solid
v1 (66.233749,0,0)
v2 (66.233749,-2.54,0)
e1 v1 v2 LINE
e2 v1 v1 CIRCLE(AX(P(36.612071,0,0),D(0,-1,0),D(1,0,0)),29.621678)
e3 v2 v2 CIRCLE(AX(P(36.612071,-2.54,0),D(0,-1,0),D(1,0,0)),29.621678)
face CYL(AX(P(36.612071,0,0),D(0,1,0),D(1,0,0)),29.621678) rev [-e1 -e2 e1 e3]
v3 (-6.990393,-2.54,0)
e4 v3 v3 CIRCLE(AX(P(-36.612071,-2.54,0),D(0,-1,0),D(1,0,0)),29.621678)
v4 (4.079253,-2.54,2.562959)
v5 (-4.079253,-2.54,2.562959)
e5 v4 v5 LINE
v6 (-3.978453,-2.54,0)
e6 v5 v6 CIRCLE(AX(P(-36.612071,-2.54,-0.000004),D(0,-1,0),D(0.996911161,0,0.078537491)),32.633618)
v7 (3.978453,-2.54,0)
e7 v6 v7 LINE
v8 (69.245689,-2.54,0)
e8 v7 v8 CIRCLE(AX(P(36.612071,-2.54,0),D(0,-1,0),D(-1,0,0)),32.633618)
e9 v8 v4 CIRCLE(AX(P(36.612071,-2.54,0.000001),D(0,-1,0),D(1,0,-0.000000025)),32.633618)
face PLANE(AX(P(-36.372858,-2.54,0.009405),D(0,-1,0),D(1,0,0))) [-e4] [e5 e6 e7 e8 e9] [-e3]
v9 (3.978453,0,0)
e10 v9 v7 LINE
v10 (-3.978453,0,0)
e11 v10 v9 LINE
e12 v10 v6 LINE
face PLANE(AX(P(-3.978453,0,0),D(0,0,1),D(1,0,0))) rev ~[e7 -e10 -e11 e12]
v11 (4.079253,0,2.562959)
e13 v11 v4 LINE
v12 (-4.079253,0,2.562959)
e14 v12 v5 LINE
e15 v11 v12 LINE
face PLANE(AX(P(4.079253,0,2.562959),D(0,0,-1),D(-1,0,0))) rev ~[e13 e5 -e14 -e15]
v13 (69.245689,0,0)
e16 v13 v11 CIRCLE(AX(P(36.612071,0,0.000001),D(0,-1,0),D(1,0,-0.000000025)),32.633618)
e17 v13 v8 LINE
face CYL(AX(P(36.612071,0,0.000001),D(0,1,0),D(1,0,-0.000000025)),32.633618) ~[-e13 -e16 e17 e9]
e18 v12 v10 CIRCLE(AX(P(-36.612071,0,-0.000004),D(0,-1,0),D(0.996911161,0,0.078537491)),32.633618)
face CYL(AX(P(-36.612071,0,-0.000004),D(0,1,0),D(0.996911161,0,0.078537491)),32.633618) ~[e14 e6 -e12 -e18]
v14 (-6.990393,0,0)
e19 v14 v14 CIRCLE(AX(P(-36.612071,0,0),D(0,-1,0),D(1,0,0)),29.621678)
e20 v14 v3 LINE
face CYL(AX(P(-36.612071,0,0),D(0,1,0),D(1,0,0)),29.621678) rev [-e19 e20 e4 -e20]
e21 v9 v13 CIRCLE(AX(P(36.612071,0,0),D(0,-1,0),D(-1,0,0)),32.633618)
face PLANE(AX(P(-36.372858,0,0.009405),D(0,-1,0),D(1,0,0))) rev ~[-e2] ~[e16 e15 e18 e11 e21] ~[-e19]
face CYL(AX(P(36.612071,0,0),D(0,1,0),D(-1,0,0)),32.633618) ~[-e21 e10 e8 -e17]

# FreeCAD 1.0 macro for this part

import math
import FreeCAD as App
import Part
import Sketcher
from FreeCAD import Vector

doc = App.newDocument("Part")
params = doc.addObject("Spreadsheet::Sheet", "Params")
for row, (alias, value) in enumerate([
    ("pad1_length", "0.1 in"),
], start=1):
    params.set(f"A{row}", alias)
    params.set(f"B{row}", "=" + value)
    params.setAlias(f"B{row}", alias)

body = doc.addObject("PartDesign::Body", "Body")

# Sketch on XZ plane
sketch1 = doc.addObject("Sketcher::SketchObject", "Sketch")
body.addObject(sketch1)
sketch1.AttachmentSupport = (doc.XZ_Plane, [""])
sketch1.MapMode = "FlatFace"
sketch1.addGeometry(Part.ArcOfCircle(Part.Circle(Vector(-36.6, 0, 0), Vector(0, 0, 1), 32.6), math.radians(5), math.radians(360)), False)
sketch1.addGeometry(Part.LineSegment(Vector(-4, 0, 0), Vector(4, 0, 0)), False)
sketch1.addGeometry(Part.ArcOfCircle(Part.Circle(Vector(36.6, 0, 0), Vector(0, 0, 1), 32.6), math.radians(180), math.radians(360)), False)
sketch1.addGeometry(Part.ArcOfCircle(Part.Circle(Vector(36.6, 0, 0), Vector(0, 0, 1), 32.6), math.radians(0), math.radians(175)), False)
sketch1.addGeometry(Part.LineSegment(Vector(4.1, 2.6, 0), Vector(-4.1, 2.6, 0)), False)
sketch1.addGeometry(Part.Circle(Vector(-36.6, 0, 0), Vector(0, 0, 1), 29.6), False)
sketch1.addGeometry(Part.Circle(Vector(36.6, 0, 0), Vector(0, 0, 1), 29.6), False)
sketch1.addConstraint(Sketcher.Constraint("Coincident", 0, 2, 1, 1))
sketch1.addConstraint(Sketcher.Constraint("Coincident", 1, 2, 2, 1))
sketch1.addConstraint(Sketcher.Constraint("Tangent", 2, 2, 3, 1))
sketch1.addConstraint(Sketcher.Constraint("Coincident", 3, 2, 4, 1))
sketch1.addConstraint(Sketcher.Constraint("Coincident", 4, 2, 0, 1))
sketch1.addConstraint(Sketcher.Constraint("Horizontal", 1))
sketch1.addConstraint(Sketcher.Constraint("Horizontal", 4))
sketch1.addConstraint(Sketcher.Constraint("Coincident", 5, 3, 0, 3))
sketch1.addConstraint(Sketcher.Constraint("Coincident", 6, 3, 2, 3))
sketch1.addConstraint(Sketcher.Constraint("Equal", 0, 2))
sketch1.addConstraint(Sketcher.Constraint("Equal", 2, 3))
sketch1.addConstraint(Sketcher.Constraint("Equal", 5, 6))
sketch1.addConstraint(Sketcher.Constraint("Symmetric", 0, 3, 2, 3, -1, 1))
sketch1.addConstraint(Sketcher.Constraint("PointOnObject", 2, 3, -1))
sketch1.addConstraint(Sketcher.Constraint("PointOnObject", 0, 2, -1))
sketch1.addConstraint(Sketcher.Constraint("PointOnObject", 2, 2, -1))
sketch1.addConstraint(Sketcher.Constraint("Radius", 0, 32.633618))
sketch1.addConstraint(Sketcher.Constraint("Diameter", 5, 59.243356))
sketch1.addConstraint(Sketcher.Constraint("DistanceX", 1, 2, 3, 2, 0.1008))
sketch1.addConstraint(Sketcher.Constraint("DistanceX", 1, 1, 1, 2, 7.956906))
pad1 = doc.addObject("PartDesign::Pad", "Pad")
body.addObject(pad1)
pad1.Profile = sketch1
pad1.setExpression("Length", "Params.pad1_length")

doc.recompute()
